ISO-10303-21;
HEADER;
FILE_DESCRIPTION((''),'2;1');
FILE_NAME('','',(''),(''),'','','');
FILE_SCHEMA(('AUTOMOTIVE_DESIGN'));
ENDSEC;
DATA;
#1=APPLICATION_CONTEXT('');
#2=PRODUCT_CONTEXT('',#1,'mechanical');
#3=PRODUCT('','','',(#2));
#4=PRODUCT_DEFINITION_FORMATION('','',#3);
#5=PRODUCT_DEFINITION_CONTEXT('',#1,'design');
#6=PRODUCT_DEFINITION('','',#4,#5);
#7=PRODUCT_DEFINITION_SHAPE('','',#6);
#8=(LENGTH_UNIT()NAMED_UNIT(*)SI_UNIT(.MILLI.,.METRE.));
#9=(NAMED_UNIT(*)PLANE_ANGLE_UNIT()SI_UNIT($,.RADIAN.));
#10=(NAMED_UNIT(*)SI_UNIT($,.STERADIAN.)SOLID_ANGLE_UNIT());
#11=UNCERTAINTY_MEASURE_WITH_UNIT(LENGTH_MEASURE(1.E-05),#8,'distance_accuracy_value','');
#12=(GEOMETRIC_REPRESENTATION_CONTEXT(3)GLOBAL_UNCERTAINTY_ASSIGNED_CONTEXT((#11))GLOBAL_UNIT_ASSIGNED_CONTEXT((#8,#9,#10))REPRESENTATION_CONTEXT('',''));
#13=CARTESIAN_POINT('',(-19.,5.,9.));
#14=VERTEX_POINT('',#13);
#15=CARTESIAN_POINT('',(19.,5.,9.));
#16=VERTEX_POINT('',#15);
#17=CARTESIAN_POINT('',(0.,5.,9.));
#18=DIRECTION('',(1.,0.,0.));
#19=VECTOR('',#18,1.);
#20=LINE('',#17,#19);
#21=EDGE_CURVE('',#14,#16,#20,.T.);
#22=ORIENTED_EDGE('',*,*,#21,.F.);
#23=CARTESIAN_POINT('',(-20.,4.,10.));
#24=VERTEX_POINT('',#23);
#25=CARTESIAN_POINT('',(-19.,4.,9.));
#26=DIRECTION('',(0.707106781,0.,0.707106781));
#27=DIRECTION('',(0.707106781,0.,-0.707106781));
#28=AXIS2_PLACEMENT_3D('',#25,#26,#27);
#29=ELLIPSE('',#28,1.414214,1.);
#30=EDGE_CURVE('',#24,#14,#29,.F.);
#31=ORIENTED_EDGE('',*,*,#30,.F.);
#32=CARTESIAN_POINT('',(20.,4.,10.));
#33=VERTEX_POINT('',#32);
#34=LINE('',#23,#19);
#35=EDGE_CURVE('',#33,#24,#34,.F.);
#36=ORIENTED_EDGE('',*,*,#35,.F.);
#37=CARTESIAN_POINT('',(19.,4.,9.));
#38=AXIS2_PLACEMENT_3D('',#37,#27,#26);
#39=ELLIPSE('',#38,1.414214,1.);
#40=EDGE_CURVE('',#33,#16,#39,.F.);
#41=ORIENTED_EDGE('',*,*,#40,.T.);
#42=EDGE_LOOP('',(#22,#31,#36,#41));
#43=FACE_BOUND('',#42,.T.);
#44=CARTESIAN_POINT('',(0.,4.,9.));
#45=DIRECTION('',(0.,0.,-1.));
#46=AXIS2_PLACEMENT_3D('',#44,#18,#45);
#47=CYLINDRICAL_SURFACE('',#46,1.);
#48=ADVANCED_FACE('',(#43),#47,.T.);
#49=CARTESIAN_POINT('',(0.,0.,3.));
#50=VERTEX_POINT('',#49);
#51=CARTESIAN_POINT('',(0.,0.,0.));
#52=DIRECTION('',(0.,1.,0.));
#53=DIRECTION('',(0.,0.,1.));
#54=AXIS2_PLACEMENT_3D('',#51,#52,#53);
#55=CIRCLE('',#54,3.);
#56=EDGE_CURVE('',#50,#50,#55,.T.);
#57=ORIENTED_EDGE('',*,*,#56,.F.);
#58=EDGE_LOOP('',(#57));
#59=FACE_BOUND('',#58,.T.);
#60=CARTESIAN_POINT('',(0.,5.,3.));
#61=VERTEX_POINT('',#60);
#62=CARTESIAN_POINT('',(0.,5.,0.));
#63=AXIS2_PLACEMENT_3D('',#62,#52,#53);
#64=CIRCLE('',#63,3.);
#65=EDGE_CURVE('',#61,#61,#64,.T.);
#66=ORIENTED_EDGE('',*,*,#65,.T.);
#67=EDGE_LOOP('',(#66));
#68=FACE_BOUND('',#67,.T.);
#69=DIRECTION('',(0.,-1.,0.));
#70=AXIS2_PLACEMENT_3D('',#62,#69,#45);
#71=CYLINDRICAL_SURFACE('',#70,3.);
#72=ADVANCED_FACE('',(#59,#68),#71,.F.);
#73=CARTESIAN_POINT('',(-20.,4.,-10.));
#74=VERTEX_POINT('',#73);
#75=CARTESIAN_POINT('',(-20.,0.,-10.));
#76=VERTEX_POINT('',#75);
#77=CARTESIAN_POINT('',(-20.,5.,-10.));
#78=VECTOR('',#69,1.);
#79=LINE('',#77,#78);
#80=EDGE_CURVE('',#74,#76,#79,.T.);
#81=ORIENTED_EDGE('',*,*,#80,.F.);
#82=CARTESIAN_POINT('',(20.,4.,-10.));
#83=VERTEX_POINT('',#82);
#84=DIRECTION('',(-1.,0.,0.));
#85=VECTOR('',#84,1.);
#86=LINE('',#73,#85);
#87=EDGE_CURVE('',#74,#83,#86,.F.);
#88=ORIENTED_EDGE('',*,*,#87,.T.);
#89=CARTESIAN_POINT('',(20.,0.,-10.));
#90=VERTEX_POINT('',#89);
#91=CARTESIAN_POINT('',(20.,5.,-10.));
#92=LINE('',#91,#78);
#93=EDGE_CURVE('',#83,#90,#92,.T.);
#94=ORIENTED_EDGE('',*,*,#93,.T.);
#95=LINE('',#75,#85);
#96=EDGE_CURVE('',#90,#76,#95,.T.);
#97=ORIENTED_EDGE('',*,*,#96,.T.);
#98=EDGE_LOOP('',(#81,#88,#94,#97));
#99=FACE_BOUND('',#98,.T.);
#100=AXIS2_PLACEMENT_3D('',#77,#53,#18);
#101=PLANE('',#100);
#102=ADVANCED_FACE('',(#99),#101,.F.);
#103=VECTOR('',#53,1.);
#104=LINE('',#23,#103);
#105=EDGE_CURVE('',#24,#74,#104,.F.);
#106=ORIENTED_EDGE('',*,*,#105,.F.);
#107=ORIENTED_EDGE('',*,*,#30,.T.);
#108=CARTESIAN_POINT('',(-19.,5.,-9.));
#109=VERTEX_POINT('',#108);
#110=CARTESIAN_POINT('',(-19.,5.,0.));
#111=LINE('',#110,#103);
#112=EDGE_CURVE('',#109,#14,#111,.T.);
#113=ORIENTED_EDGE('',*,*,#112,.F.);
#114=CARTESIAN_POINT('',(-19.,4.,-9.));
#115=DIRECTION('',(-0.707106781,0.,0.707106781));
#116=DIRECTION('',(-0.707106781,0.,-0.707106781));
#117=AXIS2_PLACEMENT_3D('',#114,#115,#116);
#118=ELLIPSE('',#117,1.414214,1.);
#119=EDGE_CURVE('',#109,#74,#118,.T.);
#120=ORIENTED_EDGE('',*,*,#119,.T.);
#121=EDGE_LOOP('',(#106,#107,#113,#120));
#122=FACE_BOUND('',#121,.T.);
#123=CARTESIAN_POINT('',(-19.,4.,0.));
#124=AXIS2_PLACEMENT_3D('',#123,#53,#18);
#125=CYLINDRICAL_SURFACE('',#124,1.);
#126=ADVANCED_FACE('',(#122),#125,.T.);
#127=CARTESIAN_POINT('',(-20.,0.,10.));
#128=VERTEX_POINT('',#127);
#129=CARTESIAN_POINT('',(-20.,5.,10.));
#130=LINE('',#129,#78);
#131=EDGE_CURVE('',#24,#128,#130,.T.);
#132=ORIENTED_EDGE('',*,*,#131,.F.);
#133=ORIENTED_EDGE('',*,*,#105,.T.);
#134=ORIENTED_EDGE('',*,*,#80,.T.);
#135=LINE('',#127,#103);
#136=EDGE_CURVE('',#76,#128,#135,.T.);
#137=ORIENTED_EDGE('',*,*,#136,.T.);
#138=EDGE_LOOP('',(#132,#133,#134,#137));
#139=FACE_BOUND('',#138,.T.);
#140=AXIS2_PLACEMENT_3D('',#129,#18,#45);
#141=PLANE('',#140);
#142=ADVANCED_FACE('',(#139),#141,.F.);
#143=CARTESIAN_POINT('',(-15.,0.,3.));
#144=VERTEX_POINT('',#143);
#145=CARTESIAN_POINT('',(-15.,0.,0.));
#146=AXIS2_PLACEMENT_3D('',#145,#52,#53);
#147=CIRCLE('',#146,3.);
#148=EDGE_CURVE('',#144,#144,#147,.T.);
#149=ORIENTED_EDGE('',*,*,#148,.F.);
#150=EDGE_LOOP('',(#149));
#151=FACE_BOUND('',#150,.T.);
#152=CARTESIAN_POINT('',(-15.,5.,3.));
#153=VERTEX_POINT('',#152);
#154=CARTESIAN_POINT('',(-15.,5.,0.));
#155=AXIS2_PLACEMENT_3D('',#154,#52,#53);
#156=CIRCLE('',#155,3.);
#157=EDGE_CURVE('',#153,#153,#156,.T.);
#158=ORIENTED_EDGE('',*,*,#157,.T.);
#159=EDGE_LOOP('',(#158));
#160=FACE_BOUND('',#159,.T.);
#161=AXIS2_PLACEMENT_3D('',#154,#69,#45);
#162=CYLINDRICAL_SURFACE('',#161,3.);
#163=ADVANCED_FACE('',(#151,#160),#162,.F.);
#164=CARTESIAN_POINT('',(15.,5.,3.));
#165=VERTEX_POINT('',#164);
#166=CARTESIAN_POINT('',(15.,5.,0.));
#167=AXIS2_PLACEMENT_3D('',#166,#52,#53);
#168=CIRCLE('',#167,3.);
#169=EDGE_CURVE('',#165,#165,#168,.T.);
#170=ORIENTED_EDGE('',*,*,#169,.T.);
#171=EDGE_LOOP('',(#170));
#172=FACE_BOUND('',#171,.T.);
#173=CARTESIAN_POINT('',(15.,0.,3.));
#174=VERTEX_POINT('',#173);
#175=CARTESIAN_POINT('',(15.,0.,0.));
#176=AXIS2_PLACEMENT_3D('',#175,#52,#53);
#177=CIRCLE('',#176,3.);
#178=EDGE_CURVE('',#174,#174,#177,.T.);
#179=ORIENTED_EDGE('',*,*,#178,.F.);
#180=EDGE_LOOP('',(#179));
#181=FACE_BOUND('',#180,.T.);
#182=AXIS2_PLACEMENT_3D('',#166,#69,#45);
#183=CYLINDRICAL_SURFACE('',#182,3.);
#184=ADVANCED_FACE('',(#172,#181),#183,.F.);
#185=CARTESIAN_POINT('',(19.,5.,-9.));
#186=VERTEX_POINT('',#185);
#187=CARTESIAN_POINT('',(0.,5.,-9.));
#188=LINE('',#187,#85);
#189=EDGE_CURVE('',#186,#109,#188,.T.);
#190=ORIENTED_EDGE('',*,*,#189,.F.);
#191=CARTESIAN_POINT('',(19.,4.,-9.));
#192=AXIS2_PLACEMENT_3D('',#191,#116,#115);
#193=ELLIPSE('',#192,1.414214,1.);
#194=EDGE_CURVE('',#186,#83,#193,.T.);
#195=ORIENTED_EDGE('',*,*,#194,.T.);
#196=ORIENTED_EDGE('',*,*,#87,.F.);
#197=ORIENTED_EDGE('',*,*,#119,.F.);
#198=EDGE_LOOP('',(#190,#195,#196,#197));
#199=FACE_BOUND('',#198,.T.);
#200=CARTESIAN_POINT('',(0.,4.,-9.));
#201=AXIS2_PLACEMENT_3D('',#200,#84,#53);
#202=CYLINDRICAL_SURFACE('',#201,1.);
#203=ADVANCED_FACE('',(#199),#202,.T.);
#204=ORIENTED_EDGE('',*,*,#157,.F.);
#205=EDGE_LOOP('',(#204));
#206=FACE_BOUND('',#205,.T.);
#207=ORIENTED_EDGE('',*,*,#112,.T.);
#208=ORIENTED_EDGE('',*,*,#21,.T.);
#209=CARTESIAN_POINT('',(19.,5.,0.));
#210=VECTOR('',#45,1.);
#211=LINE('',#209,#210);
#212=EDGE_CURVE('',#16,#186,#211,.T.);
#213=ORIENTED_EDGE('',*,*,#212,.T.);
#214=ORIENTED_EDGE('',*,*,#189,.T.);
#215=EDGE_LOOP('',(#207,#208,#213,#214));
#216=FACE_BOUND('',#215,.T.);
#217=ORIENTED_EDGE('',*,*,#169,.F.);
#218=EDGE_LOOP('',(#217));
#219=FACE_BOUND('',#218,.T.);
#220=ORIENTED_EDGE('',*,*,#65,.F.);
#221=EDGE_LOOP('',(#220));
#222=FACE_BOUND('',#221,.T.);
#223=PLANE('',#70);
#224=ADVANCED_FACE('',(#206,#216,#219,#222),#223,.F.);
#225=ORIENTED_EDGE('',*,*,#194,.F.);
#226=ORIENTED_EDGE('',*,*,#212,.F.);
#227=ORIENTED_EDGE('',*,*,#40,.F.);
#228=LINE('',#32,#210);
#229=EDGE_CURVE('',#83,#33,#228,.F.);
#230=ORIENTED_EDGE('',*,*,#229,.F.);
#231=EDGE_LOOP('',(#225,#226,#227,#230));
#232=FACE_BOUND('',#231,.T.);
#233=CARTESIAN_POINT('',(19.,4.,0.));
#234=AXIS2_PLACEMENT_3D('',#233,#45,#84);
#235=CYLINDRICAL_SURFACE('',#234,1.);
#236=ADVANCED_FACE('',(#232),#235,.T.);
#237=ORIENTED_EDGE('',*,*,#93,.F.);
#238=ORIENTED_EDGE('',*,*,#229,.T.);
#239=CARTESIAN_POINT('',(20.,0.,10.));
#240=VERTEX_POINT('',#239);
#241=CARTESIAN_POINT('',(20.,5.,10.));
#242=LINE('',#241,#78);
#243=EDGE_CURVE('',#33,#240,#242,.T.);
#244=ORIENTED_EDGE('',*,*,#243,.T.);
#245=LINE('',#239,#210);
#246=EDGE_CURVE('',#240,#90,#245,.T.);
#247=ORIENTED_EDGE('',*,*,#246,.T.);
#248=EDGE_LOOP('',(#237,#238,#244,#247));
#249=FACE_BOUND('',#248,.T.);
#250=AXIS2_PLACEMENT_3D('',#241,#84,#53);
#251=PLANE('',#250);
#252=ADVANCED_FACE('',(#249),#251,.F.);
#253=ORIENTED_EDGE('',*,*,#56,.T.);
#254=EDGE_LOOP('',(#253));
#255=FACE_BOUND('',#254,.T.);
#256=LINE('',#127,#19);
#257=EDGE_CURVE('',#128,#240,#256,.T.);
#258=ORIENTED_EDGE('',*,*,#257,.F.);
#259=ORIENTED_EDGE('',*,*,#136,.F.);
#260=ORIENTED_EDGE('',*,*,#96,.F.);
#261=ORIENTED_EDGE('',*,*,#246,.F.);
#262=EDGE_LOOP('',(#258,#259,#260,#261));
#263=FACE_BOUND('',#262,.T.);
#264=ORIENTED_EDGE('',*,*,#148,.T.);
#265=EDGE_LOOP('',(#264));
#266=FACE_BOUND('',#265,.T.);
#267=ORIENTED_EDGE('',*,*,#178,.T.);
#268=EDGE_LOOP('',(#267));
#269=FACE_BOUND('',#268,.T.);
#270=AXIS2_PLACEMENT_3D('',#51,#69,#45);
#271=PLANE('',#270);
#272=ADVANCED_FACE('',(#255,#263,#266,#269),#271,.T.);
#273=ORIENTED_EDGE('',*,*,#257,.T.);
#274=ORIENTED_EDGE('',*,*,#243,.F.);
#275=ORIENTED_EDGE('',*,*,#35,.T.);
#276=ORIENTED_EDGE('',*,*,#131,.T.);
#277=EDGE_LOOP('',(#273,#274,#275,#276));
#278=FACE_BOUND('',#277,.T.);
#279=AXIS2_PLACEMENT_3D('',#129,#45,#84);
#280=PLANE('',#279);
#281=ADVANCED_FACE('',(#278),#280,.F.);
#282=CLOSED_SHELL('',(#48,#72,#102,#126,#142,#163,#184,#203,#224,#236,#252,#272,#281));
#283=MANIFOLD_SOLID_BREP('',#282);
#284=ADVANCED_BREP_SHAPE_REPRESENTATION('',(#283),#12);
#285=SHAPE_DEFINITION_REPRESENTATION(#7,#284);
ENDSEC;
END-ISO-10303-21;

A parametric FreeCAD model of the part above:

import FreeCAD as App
import Part
import Sketcher

V = App.Vector
Q = App.Units.Quantity


def edges_at(feature, points):
    """Names of the edges that pass closest to the given points."""
    edges = feature.Shape.Edges
    near = lambda p: min(range(len(edges)), key=lambda i: edges[i].distToShape(Part.Vertex(*p))[0])
    return sorted({f"Edge{near(p) + 1}" for p in points})

doc = App.newDocument("Part")
body = doc.addObject("PartDesign::Body", "Body")

# Sketch on XZ plane
sketch1 = doc.addObject("Sketcher::SketchObject", "Sketch")
body.addObject(sketch1)
sketch1.AttachmentSupport = (doc.XZ_Plane, [""])
sketch1.MapMode = "FlatFace"
sketch1.addGeometry(Part.LineSegment(V(-20, -10, 0), V(-20, 10, 0)), False)
sketch1.addGeometry(Part.LineSegment(V(-20, 10, 0), V(20, 10, 0)), False)
sketch1.addGeometry(Part.LineSegment(V(20, 10, 0), V(20, -10, 0)), False)
sketch1.addGeometry(Part.LineSegment(V(20, -10, 0), V(-20, -10, 0)), False)
sketch1.addGeometry(Part.Circle(V(-15, 0, 0), V(0, 0, 1), 3), False)
sketch1.addGeometry(Part.Circle(V(0, 0, 0), V(0, 0, 1), 3), False)
sketch1.addGeometry(Part.Circle(V(15, 0, 0), V(0, 0, 1), 3), False)
sketch1.addConstraint(Sketcher.Constraint("Coincident", 0, 2, 1, 1))
sketch1.addConstraint(Sketcher.Constraint("Coincident", 1, 2, 2, 1))
sketch1.addConstraint(Sketcher.Constraint("Coincident", 2, 2, 3, 1))
sketch1.addConstraint(Sketcher.Constraint("Coincident", 3, 2, 0, 1))
sketch1.addConstraint(Sketcher.Constraint("Vertical", 0))
sketch1.addConstraint(Sketcher.Constraint("Horizontal", 1))
sketch1.addConstraint(Sketcher.Constraint("Vertical", 2))
sketch1.addConstraint(Sketcher.Constraint("Horizontal", 3))
sketch1.addConstraint(Sketcher.Constraint("Coincident", 5, 3, -1, 1))
sketch1.addConstraint(Sketcher.Constraint("Equal", 4, 5))
sketch1.addConstraint(Sketcher.Constraint("Equal", 5, 6))
sketch1.addConstraint(Sketcher.Constraint("Symmetric", 4, 3, 6, 3, -1, 1))
sketch1.addConstraint(Sketcher.Constraint("Symmetric", 0, 2, 2, 2, -1, 1))
sketch1.addConstraint(Sketcher.Constraint("PointOnObject", 4, 3, -1))
sketch1.addConstraint(Sketcher.Constraint("Diameter", 4, Q("6 mm")))
sketch1.addConstraint(Sketcher.Constraint("DistanceX", 1, 1, 1, 2, Q("40 mm")))
sketch1.addConstraint(Sketcher.Constraint("DistanceY", 0, 1, 0, 2, Q("20 mm")))
sketch1.addConstraint(Sketcher.Constraint("DistanceX", 4, 3, -1, 1, Q("15 mm")))
pad1 = doc.addObject("PartDesign::Pad", "Pad")
body.addObject(pad1)
pad1.Profile = sketch1
pad1.Length = 5
pad1.Reversed = True
doc.recompute()

fillet = doc.addObject("PartDesign::Fillet", "Fillet")
body.addObject(fillet)
fillet.Base = (pad1, edges_at(pad1, [
    (20, 5, 0),
    (0, 5, -10),
    (-20, 5, 0),
    (0, 5, 10),
]))
fillet.Radius = 1

doc.recompute()
